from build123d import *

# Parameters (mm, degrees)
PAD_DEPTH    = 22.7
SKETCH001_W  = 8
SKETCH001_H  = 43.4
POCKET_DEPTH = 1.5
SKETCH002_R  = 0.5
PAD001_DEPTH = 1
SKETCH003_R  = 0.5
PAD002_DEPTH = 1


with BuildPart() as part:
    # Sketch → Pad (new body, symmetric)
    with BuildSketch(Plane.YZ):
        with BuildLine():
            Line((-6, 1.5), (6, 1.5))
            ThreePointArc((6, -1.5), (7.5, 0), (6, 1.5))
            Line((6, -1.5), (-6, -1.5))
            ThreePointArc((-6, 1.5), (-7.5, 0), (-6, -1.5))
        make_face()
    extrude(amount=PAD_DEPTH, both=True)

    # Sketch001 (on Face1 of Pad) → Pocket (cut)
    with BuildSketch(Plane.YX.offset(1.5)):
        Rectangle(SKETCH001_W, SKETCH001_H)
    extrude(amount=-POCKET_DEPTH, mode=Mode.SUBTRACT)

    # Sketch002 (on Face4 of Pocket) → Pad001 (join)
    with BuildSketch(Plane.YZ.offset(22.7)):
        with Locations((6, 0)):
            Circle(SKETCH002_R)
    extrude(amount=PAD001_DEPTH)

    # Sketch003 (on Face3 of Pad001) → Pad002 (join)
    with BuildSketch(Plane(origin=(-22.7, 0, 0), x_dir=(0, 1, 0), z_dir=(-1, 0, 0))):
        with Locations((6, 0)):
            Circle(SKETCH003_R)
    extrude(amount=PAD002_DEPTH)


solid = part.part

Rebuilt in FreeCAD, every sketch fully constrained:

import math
import FreeCAD as App
import Part
import Sketcher

V = App.Vector


def add_polygon(sketch, points):
    """Adds a closed chain of lines whose ends are joined by coincident constraints."""
    first, n = sketch.GeometryCount, len(points)
    for a, b in zip(points, points[1:] + points[:1]):
        sketch.addGeometry(Part.LineSegment(App.Vector(*a, 0), App.Vector(*b, 0)), False)
    for i in range(n):
        sketch.addConstraint(Sketcher.Constraint("Coincident", first + i, 2, first + (i + 1) % n, 1))

doc = App.newDocument("Part")
body = doc.addObject("PartDesign::Body", "Body")

sketch1 = body.newObject("Sketcher::SketchObject", "Sketch")
sketch1.AttachmentSupport = (doc.getObject("YZ_Plane"), [""])
sketch1.MapMode = "FlatFace"
sketch1.addGeometry([
    Part.LineSegment(V(6, 1.5, 0), V(-6, 1.5, 0)),
    Part.ArcOfCircle(Part.Circle(V(-6, 0, 0), V(0, 0, 1), 1.5), math.radians(90), math.radians(270)),
    Part.LineSegment(V(-6, -1.5, 0), V(6, -1.5, 0)),
    Part.ArcOfCircle(Part.Circle(V(6, 0, 0), V(0, 0, 1), 1.5), math.radians(-90), math.radians(90)),
], False)
sketch1.addConstraint([
    Sketcher.Constraint("Tangent", 0, 2, 1, 1),
    Sketcher.Constraint("Tangent", 1, 2, 2, 1),
    Sketcher.Constraint("Tangent", 2, 2, 3, 1),
    Sketcher.Constraint("Tangent", 3, 2, 0, 1),
    Sketcher.Constraint("Horizontal", 0),
    Sketcher.Constraint("Horizontal", 2),
    Sketcher.Constraint("Symmetric", 1, 3, 3, 3, -1, 1),
    Sketcher.Constraint("Radius", 1, 1.5),
    Sketcher.Constraint("DistanceX", 0, 2, 0, 1, 12.0),
])
pad1 = body.newObject("PartDesign::Pad", "Pad")
pad1.Profile = sketch1
pad1.Length = 45.4
pad1.Midplane = True

sketch2 = body.newObject("Sketcher::SketchObject", "Sketch001")
sketch2.AttachmentSupport = (doc.getObject("XY_Plane"), [""])
sketch2.MapMode = "FlatFace"
sketch2.AttachmentOffset = App.Placement(V(0, 0, -1.5), App.Rotation())
add_polygon(sketch2, [(21.7, -4), (-21.7, -4), (-21.7, 4), (21.7, 4)])
sketch2.addConstraint([
    Sketcher.Constraint("Horizontal", 0),
    Sketcher.Constraint("Vertical", 1),
    Sketcher.Constraint("Horizontal", 2),
    Sketcher.Constraint("Vertical", 3),
    Sketcher.Constraint("Symmetric", 0, 2, 2, 2, -1, 1),
    Sketcher.Constraint("DistanceY", 1, 1, 1, 2, 8.0),
    Sketcher.Constraint("DistanceX", 0, 2, 0, 1, 43.4),
])
pocket1 = body.newObject("PartDesign::Pocket", "Pocket")
pocket1.Profile = sketch2
pocket1.Length = 1.5
pocket1.Reversed = True

sketch3 = body.newObject("Sketcher::SketchObject", "Sketch002")
sketch3.AttachmentSupport = (doc.getObject("YZ_Plane"), [""])
sketch3.MapMode = "FlatFace"
sketch3.AttachmentOffset = App.Placement(V(0, 0, 22.7), App.Rotation())
sketch3.addGeometry(Part.Circle(V(6, 0, 0), V(0, 0, 1), 0.5), False)
sketch3.addConstraint([
    Sketcher.Constraint("PointOnObject", 0, 3, -1),
    Sketcher.Constraint("Diameter", 0, 1.0),
    Sketcher.Constraint("DistanceX", -1, 1, 0, 3, 6.0),
])
pad2 = body.newObject("PartDesign::Pad", "Pad001")
pad2.Profile = sketch3
pad2.Length = 1

sketch4 = body.newObject("Sketcher::SketchObject", "Sketch003")
sketch4.AttachmentSupport = (doc.getObject("YZ_Plane"), [""])
sketch4.MapMode = "FlatFace"
sketch4.AttachmentOffset = App.Placement(V(0, 0, -22.7), App.Rotation())
sketch4.addGeometry(Part.Circle(V(6, 0, 0), V(0, 0, 1), 0.5), False)
sketch4.addConstraint([
    Sketcher.Constraint("PointOnObject", 0, 3, -1),
    Sketcher.Constraint("Diameter", 0, 1.0),
    Sketcher.Constraint("DistanceX", -1, 1, 0, 3, 6.0),
])
pad3 = body.newObject("PartDesign::Pad", "Pad002")
pad3.Profile = sketch4
pad3.Length = 1
pad3.Reversed = True

doc.recompute()
